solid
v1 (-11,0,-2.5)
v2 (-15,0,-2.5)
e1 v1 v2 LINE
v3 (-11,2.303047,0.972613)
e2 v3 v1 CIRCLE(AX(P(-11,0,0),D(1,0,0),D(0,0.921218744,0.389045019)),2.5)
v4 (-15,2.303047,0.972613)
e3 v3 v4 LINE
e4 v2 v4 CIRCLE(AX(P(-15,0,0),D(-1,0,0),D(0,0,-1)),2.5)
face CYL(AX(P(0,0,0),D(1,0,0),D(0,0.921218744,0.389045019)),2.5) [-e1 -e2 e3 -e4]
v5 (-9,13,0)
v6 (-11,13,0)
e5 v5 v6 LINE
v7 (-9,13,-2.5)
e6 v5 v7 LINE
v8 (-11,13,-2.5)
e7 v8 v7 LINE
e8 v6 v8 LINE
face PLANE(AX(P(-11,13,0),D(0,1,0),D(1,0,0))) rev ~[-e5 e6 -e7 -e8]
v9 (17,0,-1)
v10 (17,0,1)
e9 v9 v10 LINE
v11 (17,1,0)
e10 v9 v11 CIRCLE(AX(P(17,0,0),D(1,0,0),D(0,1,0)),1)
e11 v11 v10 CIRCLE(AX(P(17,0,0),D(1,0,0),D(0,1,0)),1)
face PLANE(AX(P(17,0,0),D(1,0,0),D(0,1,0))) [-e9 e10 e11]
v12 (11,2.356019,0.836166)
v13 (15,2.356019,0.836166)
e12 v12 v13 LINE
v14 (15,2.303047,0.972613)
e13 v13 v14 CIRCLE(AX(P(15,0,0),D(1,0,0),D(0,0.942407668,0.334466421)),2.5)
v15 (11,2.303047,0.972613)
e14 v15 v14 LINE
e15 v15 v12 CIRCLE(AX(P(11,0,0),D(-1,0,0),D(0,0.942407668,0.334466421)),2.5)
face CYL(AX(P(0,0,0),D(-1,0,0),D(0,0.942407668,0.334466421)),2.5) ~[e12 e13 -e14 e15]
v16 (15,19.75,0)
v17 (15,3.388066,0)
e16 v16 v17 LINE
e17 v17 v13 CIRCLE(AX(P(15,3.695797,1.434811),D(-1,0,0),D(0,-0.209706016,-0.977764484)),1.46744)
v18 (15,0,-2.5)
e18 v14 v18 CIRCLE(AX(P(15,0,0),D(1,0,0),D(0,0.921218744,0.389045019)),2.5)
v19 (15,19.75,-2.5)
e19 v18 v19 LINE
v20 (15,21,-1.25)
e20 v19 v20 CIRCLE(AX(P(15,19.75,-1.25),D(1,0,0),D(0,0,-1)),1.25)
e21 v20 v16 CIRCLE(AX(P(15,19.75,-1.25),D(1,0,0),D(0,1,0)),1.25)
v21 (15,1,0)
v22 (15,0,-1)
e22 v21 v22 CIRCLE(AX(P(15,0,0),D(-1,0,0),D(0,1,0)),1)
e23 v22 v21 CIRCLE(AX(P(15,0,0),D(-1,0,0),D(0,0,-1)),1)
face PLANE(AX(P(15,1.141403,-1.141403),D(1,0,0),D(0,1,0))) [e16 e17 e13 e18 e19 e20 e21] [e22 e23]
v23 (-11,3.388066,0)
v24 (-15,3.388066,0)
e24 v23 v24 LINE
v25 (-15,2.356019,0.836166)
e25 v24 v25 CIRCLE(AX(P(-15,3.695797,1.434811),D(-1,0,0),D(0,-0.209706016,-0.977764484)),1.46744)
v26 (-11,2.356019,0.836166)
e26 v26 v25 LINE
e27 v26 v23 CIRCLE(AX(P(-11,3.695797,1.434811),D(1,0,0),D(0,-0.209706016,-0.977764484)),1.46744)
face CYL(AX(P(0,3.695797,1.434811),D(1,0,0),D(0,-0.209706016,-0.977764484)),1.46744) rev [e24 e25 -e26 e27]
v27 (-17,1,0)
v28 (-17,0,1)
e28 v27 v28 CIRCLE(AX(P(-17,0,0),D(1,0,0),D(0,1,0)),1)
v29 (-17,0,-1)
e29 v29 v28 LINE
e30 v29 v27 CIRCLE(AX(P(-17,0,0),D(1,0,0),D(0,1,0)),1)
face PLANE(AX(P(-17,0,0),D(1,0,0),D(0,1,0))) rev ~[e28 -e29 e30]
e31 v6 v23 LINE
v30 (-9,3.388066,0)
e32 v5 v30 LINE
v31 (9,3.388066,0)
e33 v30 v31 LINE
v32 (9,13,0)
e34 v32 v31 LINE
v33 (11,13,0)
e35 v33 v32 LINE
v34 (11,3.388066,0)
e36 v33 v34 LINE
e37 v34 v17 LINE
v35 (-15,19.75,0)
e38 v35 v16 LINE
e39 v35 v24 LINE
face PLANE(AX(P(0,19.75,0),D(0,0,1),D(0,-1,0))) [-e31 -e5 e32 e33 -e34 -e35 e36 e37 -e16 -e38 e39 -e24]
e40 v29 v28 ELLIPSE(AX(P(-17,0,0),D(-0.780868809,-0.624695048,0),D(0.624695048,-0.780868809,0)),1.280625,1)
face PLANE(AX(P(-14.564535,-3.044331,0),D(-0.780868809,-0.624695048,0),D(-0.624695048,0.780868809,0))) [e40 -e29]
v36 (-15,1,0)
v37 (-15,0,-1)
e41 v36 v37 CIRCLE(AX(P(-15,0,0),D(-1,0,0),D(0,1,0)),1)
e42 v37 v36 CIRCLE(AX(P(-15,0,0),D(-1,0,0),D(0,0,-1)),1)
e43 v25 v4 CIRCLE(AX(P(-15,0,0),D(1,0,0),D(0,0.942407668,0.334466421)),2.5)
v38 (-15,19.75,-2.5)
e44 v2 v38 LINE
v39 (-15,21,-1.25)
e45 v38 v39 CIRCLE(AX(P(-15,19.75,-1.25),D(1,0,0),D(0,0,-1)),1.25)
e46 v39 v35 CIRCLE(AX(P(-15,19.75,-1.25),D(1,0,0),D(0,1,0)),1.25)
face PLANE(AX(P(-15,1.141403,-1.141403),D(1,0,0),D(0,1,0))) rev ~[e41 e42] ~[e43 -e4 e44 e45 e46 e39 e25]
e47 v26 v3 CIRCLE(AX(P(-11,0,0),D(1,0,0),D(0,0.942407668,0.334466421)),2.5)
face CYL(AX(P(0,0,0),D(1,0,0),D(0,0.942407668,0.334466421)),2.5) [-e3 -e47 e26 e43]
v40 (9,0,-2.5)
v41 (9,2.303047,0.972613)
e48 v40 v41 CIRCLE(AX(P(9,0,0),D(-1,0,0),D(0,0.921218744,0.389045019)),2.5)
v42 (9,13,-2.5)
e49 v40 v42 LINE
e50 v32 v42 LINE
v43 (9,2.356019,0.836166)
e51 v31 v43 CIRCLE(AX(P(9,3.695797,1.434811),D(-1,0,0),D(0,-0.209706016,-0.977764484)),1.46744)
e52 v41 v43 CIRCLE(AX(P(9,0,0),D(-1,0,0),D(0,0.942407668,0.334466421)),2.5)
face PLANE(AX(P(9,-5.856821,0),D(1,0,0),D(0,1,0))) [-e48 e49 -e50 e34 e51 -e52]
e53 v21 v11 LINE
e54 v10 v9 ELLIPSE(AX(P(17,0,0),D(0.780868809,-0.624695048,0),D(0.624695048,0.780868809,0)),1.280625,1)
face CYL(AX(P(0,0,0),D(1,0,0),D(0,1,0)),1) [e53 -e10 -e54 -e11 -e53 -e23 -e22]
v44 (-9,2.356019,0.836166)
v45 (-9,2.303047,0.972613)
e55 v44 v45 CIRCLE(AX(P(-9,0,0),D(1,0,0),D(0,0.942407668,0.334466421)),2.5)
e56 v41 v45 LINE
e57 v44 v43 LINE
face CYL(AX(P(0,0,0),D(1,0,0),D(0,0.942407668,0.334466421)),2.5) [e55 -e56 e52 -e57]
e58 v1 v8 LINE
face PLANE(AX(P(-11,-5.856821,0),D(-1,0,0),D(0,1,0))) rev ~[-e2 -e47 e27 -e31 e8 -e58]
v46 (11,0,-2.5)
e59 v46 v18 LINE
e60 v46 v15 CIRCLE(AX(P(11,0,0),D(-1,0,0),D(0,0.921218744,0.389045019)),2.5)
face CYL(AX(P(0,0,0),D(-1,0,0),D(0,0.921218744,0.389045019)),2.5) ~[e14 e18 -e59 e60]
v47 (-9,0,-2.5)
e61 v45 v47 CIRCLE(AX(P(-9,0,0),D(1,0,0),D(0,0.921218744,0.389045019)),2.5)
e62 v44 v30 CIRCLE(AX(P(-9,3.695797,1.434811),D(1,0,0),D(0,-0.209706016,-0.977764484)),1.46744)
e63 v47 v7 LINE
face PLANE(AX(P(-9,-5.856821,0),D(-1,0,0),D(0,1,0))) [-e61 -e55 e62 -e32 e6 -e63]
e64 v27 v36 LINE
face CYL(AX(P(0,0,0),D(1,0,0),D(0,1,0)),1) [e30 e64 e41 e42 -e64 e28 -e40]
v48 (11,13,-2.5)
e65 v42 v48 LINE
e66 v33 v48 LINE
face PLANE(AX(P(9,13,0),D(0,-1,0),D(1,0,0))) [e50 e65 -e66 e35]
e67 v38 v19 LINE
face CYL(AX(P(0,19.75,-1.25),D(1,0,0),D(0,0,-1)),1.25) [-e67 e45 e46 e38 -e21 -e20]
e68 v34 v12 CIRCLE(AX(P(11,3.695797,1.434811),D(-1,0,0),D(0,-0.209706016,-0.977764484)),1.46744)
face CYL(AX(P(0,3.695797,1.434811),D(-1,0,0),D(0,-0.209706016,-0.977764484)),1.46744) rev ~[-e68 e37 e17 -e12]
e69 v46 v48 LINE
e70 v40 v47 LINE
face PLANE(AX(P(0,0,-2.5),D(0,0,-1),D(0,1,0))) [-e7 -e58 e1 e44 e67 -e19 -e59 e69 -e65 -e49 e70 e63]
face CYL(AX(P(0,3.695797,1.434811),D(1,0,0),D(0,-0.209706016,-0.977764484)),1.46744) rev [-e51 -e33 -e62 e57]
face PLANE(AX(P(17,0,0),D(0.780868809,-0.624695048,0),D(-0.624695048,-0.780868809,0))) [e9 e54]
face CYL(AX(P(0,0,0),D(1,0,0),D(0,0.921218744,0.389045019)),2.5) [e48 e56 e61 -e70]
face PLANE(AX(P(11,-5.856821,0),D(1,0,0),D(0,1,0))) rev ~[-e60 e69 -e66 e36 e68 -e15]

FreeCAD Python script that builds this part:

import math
import FreeCAD as App
import Part
import Sketcher


def add_polygon(sketch, points):
    """Adds a closed chain of lines whose ends are joined by coincident constraints."""
    first, n = sketch.GeometryCount, len(points)
    for a, b in zip(points, points[1:] + points[:1]):
        sketch.addGeometry(Part.LineSegment(App.Vector(*a, 0), App.Vector(*b, 0)), False)
    for i in range(n):
        sketch.addConstraint(Sketcher.Constraint("Coincident", first + i, 2, first + (i + 1) % n, 1))

doc = App.newDocument("Part")
body = doc.addObject("PartDesign::Body", "Body")

sketch1 = doc.addObject("Sketcher::SketchObject", "Sketch")
body.addObject(sketch1)
sketch1.AttachmentSupport = (doc.YZ_Plane, [""])
sketch1.MapMode = "FlatFace"
sketch1.addGeometry([
    Part.ArcOfCircle(Part.Circle(App.Vector(0, 0, 0), App.Vector(0, 0, 1), 2.5), math.radians(23), math.radians(270)),
    Part.LineSegment(App.Vector(0, -2.5, 0), App.Vector(19.75, -2.5, 0)),
    Part.ArcOfCircle(Part.Circle(App.Vector(19.75, -1.25, 0), App.Vector(0, 0, 1), 1.25), math.radians(-90), math.radians(0)),
    Part.ArcOfCircle(Part.Circle(App.Vector(19.75, -1.25, 0), App.Vector(0, 0, 1), 1.25), math.radians(0), math.radians(90)),
    Part.LineSegment(App.Vector(19.75, 0, 0), App.Vector(3.39, 0, 0)),
    Part.ArcOfCircle(Part.Circle(App.Vector(3.7, 1.43, 0), App.Vector(0, 0, 1), 1.47), math.radians(-156), math.radians(-102)),
    Part.ArcOfCircle(Part.Circle(App.Vector(0, 0, 0), App.Vector(0, 0, 1), 2.5), math.radians(19.54), math.radians(22.9)),
    Part.ArcOfCircle(Part.Circle(App.Vector(0, 0, 0), App.Vector(0, 0, 1), 1), math.radians(-90), math.radians(0)),
    Part.ArcOfCircle(Part.Circle(App.Vector(0, 0, 0), App.Vector(0, 0, 1), 1), math.radians(0), math.radians(270)),
], False)
sketch1.addConstraint([
    Sketcher.Constraint("Tangent", 0, 2, 1, 1),
    Sketcher.Constraint("Tangent", 1, 2, 2, 1),
    Sketcher.Constraint("Tangent", 2, 2, 3, 1),
    Sketcher.Constraint("Tangent", 3, 2, 4, 1),
    Sketcher.Constraint("Coincident", 4, 2, 5, 2),
    Sketcher.Constraint("Coincident", 5, 1, 6, 1),
    Sketcher.Constraint("Tangent", 6, 2, 0, 1),
    Sketcher.Constraint("Tangent", 7, 1, 8, 2),
    Sketcher.Constraint("Coincident", 8, 1, 7, 2),
    Sketcher.Constraint("Horizontal", 1),
    Sketcher.Constraint("Horizontal", 4),
    Sketcher.Constraint("Coincident", 0, 3, -1, 1),
    Sketcher.Constraint("Coincident", 7, 3, -1, 1),
    Sketcher.Constraint("Equal", 2, 3),
    Sketcher.Constraint("Equal", 0, 6),
    Sketcher.Constraint("PointOnObject", 3, 2, -1),
    Sketcher.Constraint("PointOnObject", 7, 1, -2),
    Sketcher.Constraint("PointOnObject", 8, 1, -1),
    Sketcher.Constraint("Horizontal", 3, 3, 2, 2),
    Sketcher.Constraint("Radius", 7, 1.0),
    Sketcher.Constraint("Radius", 0, 2.5),
    Sketcher.Constraint("DistanceX", -1, 1, 2, 2, 21.0),
    Sketcher.Constraint("Radius", 5, 1.46744),
    Sketcher.Constraint("DistanceY", 6, 2, 5, 3, 0.462198),
    Sketcher.Constraint("DistanceX", 4, 2, 4, 1, 16.361934),
    Sketcher.Constraint("DistanceY", -1, 1, 5, 3, 1.434811),
])
pad1 = doc.addObject("PartDesign::Pad", "Pad")
body.addObject(pad1)
pad1.Profile = sketch1
pad1.Length = 30
pad1.Midplane = True

sketch2 = doc.addObject("Sketcher::SketchObject", "Sketch001")
body.addObject(sketch2)
sketch2.AttachmentSupport = (doc.YZ_Plane, [""])
sketch2.MapMode = "FlatFace"
sketch2.addGeometry(Part.Circle(App.Vector(0, 0, 0), App.Vector(0, 0, 1), 1), False)
sketch2.addConstraint([
    Sketcher.Constraint("Coincident", 0, 3, -1, 1),
    Sketcher.Constraint("Diameter", 0, 2.0),
])
pad2 = doc.addObject("PartDesign::Pad", "Pad001")
body.addObject(pad2)
pad2.Profile = sketch2
pad2.Length = 34
pad2.Midplane = True

sketch3 = doc.addObject("Sketcher::SketchObject", "Sketch002")
body.addObject(sketch3)
sketch3.AttachmentSupport = (doc.XY_Plane, [""])
sketch3.MapMode = "FlatFace"
add_polygon(sketch3, [(-14.6, -3), (-17, 0), (-18.7, 0), (-18.7, -3)])
add_polygon(sketch3, [(18.7, -3), (18.7, 0), (17, 0), (14.6, -3)])
add_polygon(sketch3, [(-11, 13), (-11, -5.9), (-9, -5.9), (-9, 13)])
add_polygon(sketch3, [(9, 13), (9, -5.9), (11, -5.9), (11, 13)])
sketch3.addConstraint([
    Sketcher.Constraint("Horizontal", 1),
    Sketcher.Constraint("Vertical", 2),
    Sketcher.Constraint("Horizontal", 3),
    Sketcher.Constraint("Vertical", 4),
    Sketcher.Constraint("Horizontal", 5),
    Sketcher.Constraint("Horizontal", 7),
    Sketcher.Constraint("Vertical", 8),
    Sketcher.Constraint("Horizontal", 9),
    Sketcher.Constraint("Vertical", 10),
    Sketcher.Constraint("Horizontal", 11),
    Sketcher.Constraint("Vertical", 12),
    Sketcher.Constraint("Horizontal", 13),
    Sketcher.Constraint("Vertical", 14),
    Sketcher.Constraint("Horizontal", 15),
    Sketcher.Constraint("Symmetric", 1, 2, 4, 2, -1, 1),
    Sketcher.Constraint("Symmetric", 0, 2, 5, 2, -2),
    Sketcher.Constraint("Symmetric", 3, 2, 6, 2, -2),
    Sketcher.Constraint("Symmetric", 9, 2, 12, 2, -2),
    Sketcher.Constraint("Symmetric", 11, 2, 14, 2, -2),
    Sketcher.Constraint("DistanceX", 9, 1, 9, 2, 2.0),
    Sketcher.Constraint("DistanceX", 0, 2, -1, 1, 17.0),
    Sketcher.Constraint("DistanceX", 8, 2, -1, 1, 11.0),
    Sketcher.Constraint("DistanceY", -1, 1, 10, 2, 13.0),
    Sketcher.Constraint("DistanceX", 3, 1, 3, 2, 4.17371),
    Sketcher.Constraint("DistanceY", 2, 2, 2, 1, 3.044331),
    Sketcher.Constraint("DistanceY", 8, 2, 8, 1, 18.856821),
    Sketcher.Constraint("DistanceX", 1, 2, 1, 1, 1.738245),
])
pocket1 = doc.addObject("PartDesign::Pocket", "Pocket")
body.addObject(pocket1)
pocket1.Profile = sketch3
pocket1.Length = 25
pocket1.Midplane = True

doc.recompute()
